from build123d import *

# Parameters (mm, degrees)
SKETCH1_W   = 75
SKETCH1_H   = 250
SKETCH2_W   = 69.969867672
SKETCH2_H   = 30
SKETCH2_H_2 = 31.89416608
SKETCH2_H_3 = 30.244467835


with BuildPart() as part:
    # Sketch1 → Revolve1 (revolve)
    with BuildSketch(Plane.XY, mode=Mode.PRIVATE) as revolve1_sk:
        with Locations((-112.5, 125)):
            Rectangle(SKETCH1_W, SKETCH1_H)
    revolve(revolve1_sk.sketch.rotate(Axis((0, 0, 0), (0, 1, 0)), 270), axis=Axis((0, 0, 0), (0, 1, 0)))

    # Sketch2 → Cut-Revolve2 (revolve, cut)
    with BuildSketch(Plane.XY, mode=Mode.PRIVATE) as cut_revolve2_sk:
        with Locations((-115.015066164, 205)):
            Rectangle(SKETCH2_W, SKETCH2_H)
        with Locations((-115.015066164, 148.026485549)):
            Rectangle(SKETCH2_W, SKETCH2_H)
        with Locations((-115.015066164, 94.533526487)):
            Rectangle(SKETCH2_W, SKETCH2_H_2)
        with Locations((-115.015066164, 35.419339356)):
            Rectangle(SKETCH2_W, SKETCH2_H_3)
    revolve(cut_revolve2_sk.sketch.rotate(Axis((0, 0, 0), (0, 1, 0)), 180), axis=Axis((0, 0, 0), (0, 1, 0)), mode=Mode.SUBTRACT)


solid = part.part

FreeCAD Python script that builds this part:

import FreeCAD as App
import Part
import Sketcher
Q = App.Units.Quantity

doc = App.newDocument("Part")
body = doc.addObject("PartDesign::Body", "Body")

sketch1 = body.newObject("Sketcher::SketchObject", "Sketch")
sketch1.AttachmentSupport = (doc.getObject("XY_Plane"), [""])
sketch1.MapMode = "FlatFace"
sketch1.addGeometry([
    Part.LineSegment(App.Vector(-150, 250, 0), App.Vector(-150, 0, 0)),
    Part.LineSegment(App.Vector(-150, 0, 0), App.Vector(-75, 0, 0)),
    Part.LineSegment(App.Vector(-75, 0, 0), App.Vector(-75, 250, 0)),
    Part.LineSegment(App.Vector(-75, 250, 0), App.Vector(-150, 250, 0)),
], False)
sketch1.addConstraint([
    Sketcher.Constraint("Coincident", 0, 2, 1, 1),
    Sketcher.Constraint("Coincident", 1, 2, 2, 1),
    Sketcher.Constraint("Coincident", 2, 2, 3, 1),
    Sketcher.Constraint("Coincident", 3, 2, 0, 1),
    Sketcher.Constraint("Vertical", 0),
    Sketcher.Constraint("Horizontal", 1),
    Sketcher.Constraint("Vertical", 2),
    Sketcher.Constraint("Horizontal", 3),
    Sketcher.Constraint("PointOnObject", 0, 2, -1),
    Sketcher.Constraint("DistanceX", 1, 1, 1, 2, Q("75 mm")),
    Sketcher.Constraint("DistanceY", 0, 2, 0, 1, Q("250 mm")),
    Sketcher.Constraint("DistanceX", 0, 2, -1, 1, Q("150 mm")),
])
revolution = body.newObject("PartDesign::Revolution", "Revolution")
revolution.Profile = sketch1
revolution.ReferenceAxis = (sketch1, ["V_Axis"])
revolution.Angle = 360

sketch2 = body.newObject("Sketcher::SketchObject", "Sketch001")
sketch2.AttachmentSupport = (doc.getObject("XY_Plane"), [""])
sketch2.MapMode = "FlatFace"
sketch2.addGeometry([
    Part.LineSegment(App.Vector(-150, 220, 0), App.Vector(-150, 190, 0)),
    Part.LineSegment(App.Vector(-150, 190, 0), App.Vector(-80, 190, 0)),
    Part.LineSegment(App.Vector(-80, 190, 0), App.Vector(-80, 220, 0)),
    Part.LineSegment(App.Vector(-80, 220, 0), App.Vector(-150, 220, 0)),
    Part.LineSegment(App.Vector(-150, 163, 0), App.Vector(-150, 133, 0)),
    Part.LineSegment(App.Vector(-150, 133, 0), App.Vector(-80, 133, 0)),
    Part.LineSegment(App.Vector(-80, 133, 0), App.Vector(-80, 163, 0)),
    Part.LineSegment(App.Vector(-80, 163, 0), App.Vector(-150, 163, 0)),
    Part.LineSegment(App.Vector(-150, 110, 0), App.Vector(-150, 79, 0)),
    Part.LineSegment(App.Vector(-150, 79, 0), App.Vector(-80, 79, 0)),
    Part.LineSegment(App.Vector(-80, 79, 0), App.Vector(-80, 110, 0)),
    Part.LineSegment(App.Vector(-80, 110, 0), App.Vector(-150, 110, 0)),
    Part.LineSegment(App.Vector(-150, 51, 0), App.Vector(-150, 20, 0)),
    Part.LineSegment(App.Vector(-150, 20, 0), App.Vector(-80, 20, 0)),
    Part.LineSegment(App.Vector(-80, 20, 0), App.Vector(-80, 51, 0)),
    Part.LineSegment(App.Vector(-80, 51, 0), App.Vector(-150, 51, 0)),
], False)
sketch2.addConstraint([
    Sketcher.Constraint("Coincident", 0, 2, 1, 1),
    Sketcher.Constraint("Coincident", 1, 2, 2, 1),
    Sketcher.Constraint("Coincident", 2, 2, 3, 1),
    Sketcher.Constraint("Coincident", 3, 2, 0, 1),
    Sketcher.Constraint("Coincident", 4, 2, 5, 1),
    Sketcher.Constraint("Coincident", 5, 2, 6, 1),
    Sketcher.Constraint("Coincident", 6, 2, 7, 1),
    Sketcher.Constraint("Coincident", 7, 2, 4, 1),
    Sketcher.Constraint("Coincident", 8, 2, 9, 1),
    Sketcher.Constraint("Coincident", 9, 2, 10, 1),
    Sketcher.Constraint("Coincident", 10, 2, 11, 1),
    Sketcher.Constraint("Coincident", 11, 2, 8, 1),
    Sketcher.Constraint("Coincident", 12, 2, 13, 1),
    Sketcher.Constraint("Coincident", 13, 2, 14, 1),
    Sketcher.Constraint("Coincident", 14, 2, 15, 1),
    Sketcher.Constraint("Coincident", 15, 2, 12, 1),
    Sketcher.Constraint("Vertical", 0),
    Sketcher.Constraint("Horizontal", 1),
    Sketcher.Constraint("Vertical", 2),
    Sketcher.Constraint("Horizontal", 3),
    Sketcher.Constraint("Vertical", 4),
    Sketcher.Constraint("Horizontal", 5),
    Sketcher.Constraint("Vertical", 6),
    Sketcher.Constraint("Horizontal", 7),
    Sketcher.Constraint("Vertical", 8),
    Sketcher.Constraint("Horizontal", 9),
    Sketcher.Constraint("Vertical", 10),
    Sketcher.Constraint("Horizontal", 11),
    Sketcher.Constraint("Vertical", 12),
    Sketcher.Constraint("Horizontal", 13),
    Sketcher.Constraint("Vertical", 14),
    Sketcher.Constraint("Horizontal", 15),
    Sketcher.Constraint("Vertical", 3, 2, 4, 2),
    Sketcher.Constraint("Vertical", 2, 2, 5, 2),
    Sketcher.Constraint("Vertical", 7, 2, 8, 2),
    Sketcher.Constraint("Vertical", 6, 2, 9, 2),
    Sketcher.Constraint("Vertical", 11, 2, 12, 2),
    Sketcher.Constraint("Vertical", 10, 2, 13, 2),
    Sketcher.Constraint("Equal", 2, 4),
    Sketcher.Constraint("DistanceY", 0, 2, 0, 1, Q("30 mm")),
    Sketcher.Constraint("DistanceX", 0, 2, -1, 1, Q("150 mm")),
    Sketcher.Constraint("DistanceY", -1, 1, 0, 2, Q("190 mm")),
    Sketcher.Constraint("DistanceX", 1, 1, 1, 2, Q("69.969868 mm")),
    Sketcher.Constraint("DistanceY", 8, 2, 8, 1, Q("31.894166 mm")),
    Sketcher.Constraint("DistanceY", 12, 2, 12, 1, Q("30.244468 mm")),
    Sketcher.Constraint("DistanceY", -1, 1, 10, 2, Q("110.48061 mm")),
    Sketcher.Constraint("DistanceY", 12, 2, 8, 2, Q("58.289338 mm")),
    Sketcher.Constraint("DistanceY", 12, 2, 4, 2, Q("112.72938 mm")),
])
groove = body.newObject("PartDesign::Groove", "Groove")
groove.Profile = sketch2
groove.ReferenceAxis = (sketch2, ["V_Axis"])
groove.Angle = 360

doc.recompute()
